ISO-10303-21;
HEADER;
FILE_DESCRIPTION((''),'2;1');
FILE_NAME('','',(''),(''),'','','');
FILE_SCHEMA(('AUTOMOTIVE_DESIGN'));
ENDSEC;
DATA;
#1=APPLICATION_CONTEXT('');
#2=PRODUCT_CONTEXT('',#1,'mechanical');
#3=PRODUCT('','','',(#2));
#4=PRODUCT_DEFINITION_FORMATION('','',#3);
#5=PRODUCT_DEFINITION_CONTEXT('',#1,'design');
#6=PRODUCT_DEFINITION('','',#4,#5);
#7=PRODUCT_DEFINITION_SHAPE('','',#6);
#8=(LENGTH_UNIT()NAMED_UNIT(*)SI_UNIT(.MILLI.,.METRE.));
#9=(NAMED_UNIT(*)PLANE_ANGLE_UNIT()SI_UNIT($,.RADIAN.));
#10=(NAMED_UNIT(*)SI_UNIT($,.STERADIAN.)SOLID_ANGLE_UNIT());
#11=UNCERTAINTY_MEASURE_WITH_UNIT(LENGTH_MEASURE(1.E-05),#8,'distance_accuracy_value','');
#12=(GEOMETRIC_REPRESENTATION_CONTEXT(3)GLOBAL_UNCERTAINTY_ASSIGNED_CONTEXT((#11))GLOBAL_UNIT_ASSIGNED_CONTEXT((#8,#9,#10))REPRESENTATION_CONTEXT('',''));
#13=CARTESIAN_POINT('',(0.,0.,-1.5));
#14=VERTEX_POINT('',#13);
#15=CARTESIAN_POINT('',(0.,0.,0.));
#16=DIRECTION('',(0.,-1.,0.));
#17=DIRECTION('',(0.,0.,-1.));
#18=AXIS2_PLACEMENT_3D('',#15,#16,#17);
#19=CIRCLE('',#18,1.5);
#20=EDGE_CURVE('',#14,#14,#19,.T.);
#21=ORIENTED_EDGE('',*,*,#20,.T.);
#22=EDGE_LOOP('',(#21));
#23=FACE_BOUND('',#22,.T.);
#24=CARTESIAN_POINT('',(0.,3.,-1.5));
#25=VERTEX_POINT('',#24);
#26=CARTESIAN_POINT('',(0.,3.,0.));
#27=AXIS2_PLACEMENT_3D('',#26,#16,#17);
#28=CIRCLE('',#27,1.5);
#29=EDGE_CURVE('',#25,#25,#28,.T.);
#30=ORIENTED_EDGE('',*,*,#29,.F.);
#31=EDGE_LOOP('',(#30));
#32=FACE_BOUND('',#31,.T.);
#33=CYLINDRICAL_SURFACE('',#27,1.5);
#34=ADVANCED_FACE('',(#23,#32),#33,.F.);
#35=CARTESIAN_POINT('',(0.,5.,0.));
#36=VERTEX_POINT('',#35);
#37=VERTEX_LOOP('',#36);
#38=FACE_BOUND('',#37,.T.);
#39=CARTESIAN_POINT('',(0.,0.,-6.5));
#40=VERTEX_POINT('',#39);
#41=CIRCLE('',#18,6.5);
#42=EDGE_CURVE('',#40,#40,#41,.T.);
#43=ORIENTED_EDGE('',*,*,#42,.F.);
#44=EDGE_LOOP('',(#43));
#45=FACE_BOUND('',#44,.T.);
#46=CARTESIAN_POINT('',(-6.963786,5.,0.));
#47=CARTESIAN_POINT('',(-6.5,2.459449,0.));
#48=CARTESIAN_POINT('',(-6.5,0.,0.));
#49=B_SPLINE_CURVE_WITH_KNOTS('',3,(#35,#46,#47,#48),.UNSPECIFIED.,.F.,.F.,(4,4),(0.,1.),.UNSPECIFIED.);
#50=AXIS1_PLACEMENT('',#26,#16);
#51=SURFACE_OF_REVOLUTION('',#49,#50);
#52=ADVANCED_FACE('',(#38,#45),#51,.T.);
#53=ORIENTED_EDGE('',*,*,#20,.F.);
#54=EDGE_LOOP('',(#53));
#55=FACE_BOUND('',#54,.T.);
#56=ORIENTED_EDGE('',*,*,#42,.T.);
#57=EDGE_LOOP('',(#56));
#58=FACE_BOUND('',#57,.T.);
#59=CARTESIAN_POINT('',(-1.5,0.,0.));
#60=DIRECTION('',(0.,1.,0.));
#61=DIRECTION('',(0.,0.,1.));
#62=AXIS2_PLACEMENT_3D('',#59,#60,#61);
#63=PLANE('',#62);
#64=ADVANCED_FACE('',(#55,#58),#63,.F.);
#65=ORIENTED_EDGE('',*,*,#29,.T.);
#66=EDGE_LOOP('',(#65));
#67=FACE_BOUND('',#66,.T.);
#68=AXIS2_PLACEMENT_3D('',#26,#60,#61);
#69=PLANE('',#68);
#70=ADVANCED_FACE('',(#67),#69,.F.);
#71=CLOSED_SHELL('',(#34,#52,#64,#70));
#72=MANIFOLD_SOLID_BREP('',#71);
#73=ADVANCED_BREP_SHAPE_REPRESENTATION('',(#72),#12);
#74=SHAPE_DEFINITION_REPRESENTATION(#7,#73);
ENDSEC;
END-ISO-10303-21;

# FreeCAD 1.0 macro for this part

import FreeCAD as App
import Part
import Sketcher
from FreeCAD import Vector
Q = App.Units.Quantity

doc = App.newDocument("Part")
params = doc.addObject("Spreadsheet::Sheet", "Params")
for row, (alias, value) in enumerate([
    ("sketch1_width", "5 mm"),
    ("sketch1_height", "3 mm"),
    ("revolution_angle", "360 deg"),
], start=1):
    params.set(f"A{row}", alias)
    params.set(f"B{row}", "=" + value)
    params.setAlias(f"B{row}", alias)

body = doc.addObject("PartDesign::Body", "Body")

# Sketch on XY plane
sketch1 = doc.addObject("Sketcher::SketchObject", "Sketch")
body.addObject(sketch1)
sketch1.AttachmentSupport = (doc.XY_Plane, [""])
sketch1.MapMode = "FlatFace"
sketch1.addGeometry([
    Part.LineSegment(Vector(-6.5, 0, 0), Vector(-1.5, 0, 0)),  # 0
    Part.LineSegment(Vector(-1.5, 0, 0), Vector(-1.5, 3, 0)),  # 1
    Part.LineSegment(Vector(-1.5, 3, 0), Vector(0, 3, 0)),  # 2
    Part.LineSegment(Vector(0, 3, 0), Vector(0, 5, 0)),  # 3
    Part.BSplineCurve([Vector(0, 5, 0), Vector(-6.963786, 5, 0), Vector(-6.5, 2.459449, 0), Vector(-6.5, 0, 0)], [4, 4], [0, 1], False, 3, [1, 1, 1, 1], False),  # 4
], False)
sketch1.addConstraint([
    Sketcher.Constraint("Block", 4),
    Sketcher.Constraint("Coincident", 0, 2, 1, 1),
    Sketcher.Constraint("Coincident", 1, 2, 2, 1),
    Sketcher.Constraint("Coincident", 2, 2, 3, 1),
    Sketcher.Constraint("Coincident", 3, 2, 4, 1),
    Sketcher.Constraint("Coincident", 4, 2, 0, 1),
    Sketcher.Constraint("Horizontal", 0),
    Sketcher.Constraint("Vertical", 1),
    Sketcher.Constraint("Horizontal", 2),
    Sketcher.Constraint("Vertical", 3),
    Sketcher.Constraint("DistanceX", 0, 1, 0, 2, Q("5 mm")),
    Sketcher.Constraint("DistanceY", 1, 1, 1, 2, Q("3 mm")),
])
sketch1.setExpression("Constraints[10]", "Params.sketch1_width")
sketch1.setExpression("Constraints[11]", "Params.sketch1_height")
revolution = doc.addObject("PartDesign::Revolution", "Revolution")
body.addObject(revolution)
revolution.Profile = sketch1
revolution.ReferenceAxis = (sketch1, ["V_Axis"])
revolution.setExpression("Angle", "Params.revolution_angle")

doc.recompute()
